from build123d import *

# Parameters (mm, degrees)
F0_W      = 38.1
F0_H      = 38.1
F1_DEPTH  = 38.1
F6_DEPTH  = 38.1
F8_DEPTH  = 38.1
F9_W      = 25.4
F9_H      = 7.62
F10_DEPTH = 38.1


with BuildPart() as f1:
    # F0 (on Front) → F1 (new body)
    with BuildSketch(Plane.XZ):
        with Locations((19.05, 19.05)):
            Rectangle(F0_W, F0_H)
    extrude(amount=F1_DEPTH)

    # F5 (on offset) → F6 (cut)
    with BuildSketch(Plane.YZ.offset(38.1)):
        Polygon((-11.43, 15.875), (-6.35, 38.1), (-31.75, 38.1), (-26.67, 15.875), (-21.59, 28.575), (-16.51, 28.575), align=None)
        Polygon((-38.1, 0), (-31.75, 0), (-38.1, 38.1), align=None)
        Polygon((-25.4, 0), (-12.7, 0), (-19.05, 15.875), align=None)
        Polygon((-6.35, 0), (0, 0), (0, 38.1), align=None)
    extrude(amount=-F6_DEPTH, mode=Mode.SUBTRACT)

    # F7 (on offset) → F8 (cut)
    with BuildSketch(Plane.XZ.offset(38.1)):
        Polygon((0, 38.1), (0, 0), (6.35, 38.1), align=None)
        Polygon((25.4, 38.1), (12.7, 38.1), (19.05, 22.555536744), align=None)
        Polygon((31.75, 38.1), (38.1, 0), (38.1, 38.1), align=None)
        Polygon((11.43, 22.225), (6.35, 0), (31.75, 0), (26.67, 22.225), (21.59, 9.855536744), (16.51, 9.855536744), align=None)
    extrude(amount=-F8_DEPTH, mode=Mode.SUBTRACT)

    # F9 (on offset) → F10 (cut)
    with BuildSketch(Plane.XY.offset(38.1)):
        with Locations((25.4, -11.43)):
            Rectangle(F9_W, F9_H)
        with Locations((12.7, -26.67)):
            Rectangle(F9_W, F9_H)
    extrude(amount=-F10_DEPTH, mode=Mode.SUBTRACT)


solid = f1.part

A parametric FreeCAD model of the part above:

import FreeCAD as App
import Part
import Sketcher

V = App.Vector
Q = App.Units.Quantity

doc = App.newDocument("Part")
params = doc.addObject("Spreadsheet::Sheet", "Params")
for row, (alias, value) in enumerate([
    ("sketch1_width", "1.5 in"),
    ("pad1_length", "1.5 in"),
    ("sketch2_width", "1 in"),
    ("sketch2_width2", "0.2 in"),
    ("sketch2_width3", "0.5 in"),
    ("sketch2_height", "1.5 in"),
    ("pocket1_length", "1.5 in"),
    ("sketch3_width", "1 in"),
    ("sketch3_width2", "0.5 in"),
    ("sketch3_width3", "0.2 in"),
    ("sketch3_height", "1.5 in"),
    ("pocket2_length", "1.5 in"),
    ("sketch4_width", "1 in"),
    ("sketch4_height", "0.3 in"),
    ("pocket3_length", "1.5 in"),
], start=1):
    params.set(f"A{row}", alias)
    params.set(f"B{row}", "=" + value)
    params.setAlias(f"B{row}", alias)

body = doc.addObject("PartDesign::Body", "Body")

# Sketch on XZ plane
sketch1 = body.newObject("Sketcher::SketchObject", "Sketch")
sketch1.AttachmentSupport = (doc.getObject("XZ_Plane"), [""])
sketch1.MapMode = "FlatFace"
sketch1.addGeometry(Part.LineSegment(V(0, 38, 0), V(0, 0, 0)), False)
sketch1.addGeometry(Part.LineSegment(V(0, 0, 0), V(38, 0, 0)), False)
sketch1.addGeometry(Part.LineSegment(V(38, 0, 0), V(38, 38, 0)), False)
sketch1.addGeometry(Part.LineSegment(V(38, 38, 0), V(0, 38, 0)), False)
sketch1.addConstraint(Sketcher.Constraint("Coincident", 0, 2, 1, 1))
sketch1.addConstraint(Sketcher.Constraint("Coincident", 1, 2, 2, 1))
sketch1.addConstraint(Sketcher.Constraint("Coincident", 2, 2, 3, 1))
sketch1.addConstraint(Sketcher.Constraint("Coincident", 3, 2, 0, 1))
sketch1.addConstraint(Sketcher.Constraint("Vertical", 0))
sketch1.addConstraint(Sketcher.Constraint("Horizontal", 1))
sketch1.addConstraint(Sketcher.Constraint("Vertical", 2))
sketch1.addConstraint(Sketcher.Constraint("Horizontal", 3))
sketch1.addConstraint(Sketcher.Constraint("Coincident", 0, 2, -1, 1))
sketch1.addConstraint(Sketcher.Constraint("Equal", 3, 0))
sketch1.addConstraint(Sketcher.Constraint("DistanceX", 1, 1, 1, 2, Q("1.5 in")))
sketch1.setExpression("Constraints[10]", "Params.sketch1_width")
pad1 = body.newObject("PartDesign::Pad", "Pad")
pad1.Profile = sketch1
pad1.setExpression("Length", "Params.pad1_length")

# Sketch on YZ plane
sketch2 = body.newObject("Sketcher::SketchObject", "Sketch001")
sketch2.AttachmentSupport = (doc.getObject("YZ_Plane"), [""])
sketch2.MapMode = "FlatFace"
sketch2.AttachmentOffset = App.Placement(V(0, 0, 1.5 * 25.4), App.Rotation())
sketch2.addGeometry(Part.LineSegment(V(-11, 16, 0), V(-6, 38, 0)), False)
sketch2.addGeometry(Part.LineSegment(V(-6, 38, 0), V(-32, 38, 0)), False)
sketch2.addGeometry(Part.LineSegment(V(-32, 38, 0), V(-27, 16, 0)), False)
sketch2.addGeometry(Part.LineSegment(V(-27, 16, 0), V(-22, 29, 0)), False)
sketch2.addGeometry(Part.LineSegment(V(-22, 29, 0), V(-17, 29, 0)), False)
sketch2.addGeometry(Part.LineSegment(V(-17, 29, 0), V(-11, 16, 0)), False)
sketch2.addGeometry(Part.LineSegment(V(-38, 0, 0), V(-32, 0, 0)), False)
sketch2.addGeometry(Part.LineSegment(V(-32, 0, 0), V(-38, 38, 0)), False)
sketch2.addGeometry(Part.LineSegment(V(-38, 38, 0), V(-38, 0, 0)), False)
sketch2.addGeometry(Part.LineSegment(V(-25, 0, 0), V(-13, 0, 0)), False)
sketch2.addGeometry(Part.LineSegment(V(-13, 0, 0), V(-19, 16, 0)), False)
sketch2.addGeometry(Part.LineSegment(V(-19, 16, 0), V(-25, 0, 0)), False)
sketch2.addGeometry(Part.LineSegment(V(-6, 0, 0), V(0, 0, 0)), False)
sketch2.addGeometry(Part.LineSegment(V(0, 0, 0), V(0, 38, 0)), False)
sketch2.addGeometry(Part.LineSegment(V(0, 38, 0), V(-6, 0, 0)), False)
sketch2.addConstraint(Sketcher.Constraint("Coincident", 0, 2, 1, 1))
sketch2.addConstraint(Sketcher.Constraint("Coincident", 1, 2, 2, 1))
sketch2.addConstraint(Sketcher.Constraint("Coincident", 2, 2, 3, 1))
sketch2.addConstraint(Sketcher.Constraint("Coincident", 3, 2, 4, 1))
sketch2.addConstraint(Sketcher.Constraint("Coincident", 4, 2, 5, 1))
sketch2.addConstraint(Sketcher.Constraint("Coincident", 5, 2, 0, 1))
sketch2.addConstraint(Sketcher.Constraint("Coincident", 6, 2, 7, 1))
sketch2.addConstraint(Sketcher.Constraint("Coincident", 7, 2, 8, 1))
sketch2.addConstraint(Sketcher.Constraint("Coincident", 8, 2, 6, 1))
sketch2.addConstraint(Sketcher.Constraint("Coincident", 9, 2, 10, 1))
sketch2.addConstraint(Sketcher.Constraint("Coincident", 10, 2, 11, 1))
sketch2.addConstraint(Sketcher.Constraint("Coincident", 11, 2, 9, 1))
sketch2.addConstraint(Sketcher.Constraint("Coincident", 12, 2, 13, 1))
sketch2.addConstraint(Sketcher.Constraint("Coincident", 13, 2, 14, 1))
sketch2.addConstraint(Sketcher.Constraint("Coincident", 14, 2, 12, 1))
sketch2.addConstraint(Sketcher.Constraint("Horizontal", 1))
sketch2.addConstraint(Sketcher.Constraint("Horizontal", 4))
sketch2.addConstraint(Sketcher.Constraint("Horizontal", 6))
sketch2.addConstraint(Sketcher.Constraint("Vertical", 8))
sketch2.addConstraint(Sketcher.Constraint("Horizontal", 9))
sketch2.addConstraint(Sketcher.Constraint("Horizontal", 12))
sketch2.addConstraint(Sketcher.Constraint("Vertical", 13))
sketch2.addConstraint(Sketcher.Constraint("Coincident", 12, 2, -1, 1))
sketch2.addConstraint(Sketcher.Constraint("PointOnObject", 6, 2, -1))
sketch2.addConstraint(Sketcher.Constraint("PointOnObject", 9, 2, -1))
sketch2.addConstraint(Sketcher.Constraint("Parallel", 5, 10))
sketch2.addConstraint(Sketcher.Constraint("Parallel", 3, 11))
sketch2.addConstraint(Sketcher.Constraint("Horizontal", 2, 2, 5, 2))
sketch2.addConstraint(Sketcher.Constraint("Horizontal", 1, 2, 7, 2))
sketch2.addConstraint(Sketcher.Constraint("Horizontal", 5, 2, 10, 2))
sketch2.addConstraint(Sketcher.Constraint("Horizontal", 7, 2, 13, 2))
sketch2.addConstraint(Sketcher.Constraint("Vertical", 1, 2, 6, 2))
sketch2.addConstraint(Sketcher.Constraint("Vertical", 0, 2, 14, 2))
sketch2.addConstraint(Sketcher.Constraint("Equal", 6, 12))
sketch2.addConstraint(Sketcher.Constraint("Equal", 0, 2))
sketch2.addConstraint(Sketcher.Constraint("Equal", 3, 5))
sketch2.addConstraint(Sketcher.Constraint("DistanceX", 1, 2, 1, 1, Q("1 in")))
sketch2.addConstraint(Sketcher.Constraint("DistanceX", 4, 1, 4, 2, Q("0.2 in")))
sketch2.addConstraint(Sketcher.Constraint("DistanceX", 9, 1, 9, 2, Q("0.5 in")))
sketch2.addConstraint(Sketcher.Constraint("DistanceY", 8, 2, 8, 1, Q("1.5 in")))
sketch2.addConstraint(Sketcher.Constraint("DistanceX", 11, 2, -1, 1, Q("1 in")))
sketch2.addConstraint(Sketcher.Constraint("DistanceX", 8, 2, 9, 2, Q("1 in")))
sketch2.addConstraint(Sketcher.Constraint("DistanceX", 1, 2, 2, 2, Q("0.2 in")))
sketch2.addConstraint(Sketcher.Constraint("DistanceY", 2, 2, 3, 2, Q("0.5 in")))
sketch2.setExpression("Constraints[36]", "Params.sketch2_width")
sketch2.setExpression("Constraints[37]", "Params.sketch2_width2")
sketch2.setExpression("Constraints[38]", "Params.sketch2_width3")
sketch2.setExpression("Constraints[39]", "Params.sketch2_height")
pocket1 = body.newObject("PartDesign::Pocket", "Pocket")
pocket1.Profile = sketch2
pocket1.setExpression("Length", "Params.pocket1_length")

# Sketch on XZ plane
sketch3 = body.newObject("Sketcher::SketchObject", "Sketch002")
sketch3.AttachmentSupport = (doc.getObject("XZ_Plane"), [""])
sketch3.MapMode = "FlatFace"
sketch3.AttachmentOffset = App.Placement(V(0, 0, 1.5 * 25.4), App.Rotation())
sketch3.addGeometry(Part.LineSegment(V(0, 38, 0), V(0, 0, 0)), False)
sketch3.addGeometry(Part.LineSegment(V(0, 0, 0), V(6, 38, 0)), False)
sketch3.addGeometry(Part.LineSegment(V(6, 38, 0), V(0, 38, 0)), False)
sketch3.addGeometry(Part.LineSegment(V(25, 38, 0), V(13, 38, 0)), False)
sketch3.addGeometry(Part.LineSegment(V(13, 38, 0), V(19, 23, 0)), False)
sketch3.addGeometry(Part.LineSegment(V(19, 23, 0), V(25, 38, 0)), False)
sketch3.addGeometry(Part.LineSegment(V(32, 38, 0), V(38, 0, 0)), False)
sketch3.addGeometry(Part.LineSegment(V(38, 0, 0), V(38, 38, 0)), False)
sketch3.addGeometry(Part.LineSegment(V(38, 38, 0), V(32, 38, 0)), False)
sketch3.addGeometry(Part.LineSegment(V(11, 22, 0), V(6, 0, 0)), False)
sketch3.addGeometry(Part.LineSegment(V(6, 0, 0), V(32, 0, 0)), False)
sketch3.addGeometry(Part.LineSegment(V(32, 0, 0), V(27, 22, 0)), False)
sketch3.addGeometry(Part.LineSegment(V(27, 22, 0), V(22, 10, 0)), False)
sketch3.addGeometry(Part.LineSegment(V(22, 10, 0), V(17, 10, 0)), False)
sketch3.addGeometry(Part.LineSegment(V(17, 10, 0), V(11, 22, 0)), False)
sketch3.addConstraint(Sketcher.Constraint("Coincident", 0, 2, 1, 1))
sketch3.addConstraint(Sketcher.Constraint("Coincident", 1, 2, 2, 1))
sketch3.addConstraint(Sketcher.Constraint("Coincident", 2, 2, 0, 1))
sketch3.addConstraint(Sketcher.Constraint("Coincident", 3, 2, 4, 1))
sketch3.addConstraint(Sketcher.Constraint("Coincident", 4, 2, 5, 1))
sketch3.addConstraint(Sketcher.Constraint("Coincident", 5, 2, 3, 1))
sketch3.addConstraint(Sketcher.Constraint("Coincident", 6, 2, 7, 1))
sketch3.addConstraint(Sketcher.Constraint("Coincident", 7, 2, 8, 1))
sketch3.addConstraint(Sketcher.Constraint("Coincident", 8, 2, 6, 1))
sketch3.addConstraint(Sketcher.Constraint("Coincident", 9, 2, 10, 1))
sketch3.addConstraint(Sketcher.Constraint("Coincident", 10, 2, 11, 1))
sketch3.addConstraint(Sketcher.Constraint("Coincident", 11, 2, 12, 1))
sketch3.addConstraint(Sketcher.Constraint("Coincident", 12, 2, 13, 1))
sketch3.addConstraint(Sketcher.Constraint("Coincident", 13, 2, 14, 1))
sketch3.addConstraint(Sketcher.Constraint("Coincident", 14, 2, 9, 1))
sketch3.addConstraint(Sketcher.Constraint("Vertical", 0))
sketch3.addConstraint(Sketcher.Constraint("Horizontal", 2))
sketch3.addConstraint(Sketcher.Constraint("Horizontal", 3))
sketch3.addConstraint(Sketcher.Constraint("Vertical", 7))
sketch3.addConstraint(Sketcher.Constraint("Horizontal", 8))
sketch3.addConstraint(Sketcher.Constraint("Horizontal", 10))
sketch3.addConstraint(Sketcher.Constraint("Horizontal", 13))
sketch3.addConstraint(Sketcher.Constraint("Coincident", 0, 2, -1, 1))
sketch3.addConstraint(Sketcher.Constraint("PointOnObject", 6, 2, -1))
sketch3.addConstraint(Sketcher.Constraint("PointOnObject", 9, 2, -1))
sketch3.addConstraint(Sketcher.Constraint("Horizontal", 2, 2, 3, 2))
sketch3.addConstraint(Sketcher.Constraint("Horizontal", 5, 2, 7, 2))
sketch3.addConstraint(Sketcher.Constraint("Horizontal", 11, 2, 14, 2))
sketch3.addConstraint(Sketcher.Constraint("Vertical", 1, 2, 9, 2))
sketch3.addConstraint(Sketcher.Constraint("Vertical", 8, 2, 10, 2))
sketch3.addConstraint(Sketcher.Constraint("Equal", 2, 8))
sketch3.addConstraint(Sketcher.Constraint("Equal", 4, 5))
sketch3.addConstraint(Sketcher.Constraint("Equal", 9, 11))
sketch3.addConstraint(Sketcher.Constraint("Equal", 12, 14))
sketch3.addConstraint(Sketcher.Constraint("DistanceX", 10, 1, 10, 2, Q("1 in")))
sketch3.addConstraint(Sketcher.Constraint("DistanceX", 3, 2, 3, 1, Q("0.5 in")))
sketch3.addConstraint(Sketcher.Constraint("DistanceX", 13, 2, 13, 1, Q("0.2 in")))
sketch3.addConstraint(Sketcher.Constraint("DistanceY", 0, 2, 0, 1, Q("1.5 in")))
sketch3.addConstraint(Sketcher.Constraint("DistanceX", -1, 1, 5, 2, Q("1 in")))
sketch3.addConstraint(Sketcher.Constraint("DistanceX", 3, 2, 6, 2, Q("1 in")))
sketch3.addConstraint(Sketcher.Constraint("DistanceX", 4, 2, 11, 2, Q("0.3 in")))
sketch3.addConstraint(Sketcher.Constraint("DistanceY", 12, 2, 4, 2, Q("0.5 in")))
sketch3.addConstraint(Sketcher.Constraint("DistanceY", -1, 1, 11, 2, Q("0.875 in")))
sketch3.addConstraint(Sketcher.Constraint("Distance", 4, Q("16.791451 mm")))
sketch3.setExpression("Constraints[34]", "Params.sketch3_width")
sketch3.setExpression("Constraints[35]", "Params.sketch3_width2")
sketch3.setExpression("Constraints[36]", "Params.sketch3_width3")
sketch3.setExpression("Constraints[37]", "Params.sketch3_height")
pocket2 = body.newObject("PartDesign::Pocket", "Pocket001")
pocket2.Profile = sketch3
pocket2.setExpression("Length", "Params.pocket2_length")

# Sketch on XY plane
sketch4 = body.newObject("Sketcher::SketchObject", "Sketch003")
sketch4.AttachmentSupport = (doc.getObject("XY_Plane"), [""])
sketch4.MapMode = "FlatFace"
sketch4.AttachmentOffset = App.Placement(V(0, 0, 1.5 * 25.4), App.Rotation())
sketch4.addGeometry(Part.LineSegment(V(13, -8, 0), V(13, -15, 0)), False)
sketch4.addGeometry(Part.LineSegment(V(13, -15, 0), V(38, -15, 0)), False)
sketch4.addGeometry(Part.LineSegment(V(38, -15, 0), V(38, -8, 0)), False)
sketch4.addGeometry(Part.LineSegment(V(38, -8, 0), V(13, -8, 0)), False)
sketch4.addGeometry(Part.LineSegment(V(0, -23, 0), V(0, -30, 0)), False)
sketch4.addGeometry(Part.LineSegment(V(0, -30, 0), V(25, -30, 0)), False)
sketch4.addGeometry(Part.LineSegment(V(25, -30, 0), V(25, -23, 0)), False)
sketch4.addGeometry(Part.LineSegment(V(25, -23, 0), V(0, -23, 0)), False)
sketch4.addConstraint(Sketcher.Constraint("Coincident", 0, 2, 1, 1))
sketch4.addConstraint(Sketcher.Constraint("Coincident", 1, 2, 2, 1))
sketch4.addConstraint(Sketcher.Constraint("Coincident", 2, 2, 3, 1))
sketch4.addConstraint(Sketcher.Constraint("Coincident", 3, 2, 0, 1))
sketch4.addConstraint(Sketcher.Constraint("Coincident", 4, 2, 5, 1))
sketch4.addConstraint(Sketcher.Constraint("Coincident", 5, 2, 6, 1))
sketch4.addConstraint(Sketcher.Constraint("Coincident", 6, 2, 7, 1))
sketch4.addConstraint(Sketcher.Constraint("Coincident", 7, 2, 4, 1))
sketch4.addConstraint(Sketcher.Constraint("Vertical", 0))
sketch4.addConstraint(Sketcher.Constraint("Horizontal", 1))
sketch4.addConstraint(Sketcher.Constraint("Vertical", 2))
sketch4.addConstraint(Sketcher.Constraint("Horizontal", 3))
sketch4.addConstraint(Sketcher.Constraint("Vertical", 4))
sketch4.addConstraint(Sketcher.Constraint("Horizontal", 5))
sketch4.addConstraint(Sketcher.Constraint("Vertical", 6))
sketch4.addConstraint(Sketcher.Constraint("Horizontal", 7))
sketch4.addConstraint(Sketcher.Constraint("PointOnObject", 4, 2, -2))
sketch4.addConstraint(Sketcher.Constraint("Equal", 3, 5))
sketch4.addConstraint(Sketcher.Constraint("Equal", 2, 4))
sketch4.addConstraint(Sketcher.Constraint("DistanceX", 1, 1, 1, 2, Q("1 in")))
sketch4.addConstraint(Sketcher.Constraint("DistanceY", 0, 2, 0, 1, Q("0.3 in")))
sketch4.addConstraint(Sketcher.Constraint("DistanceX", -1, 1, 0, 2, Q("0.5 in")))
sketch4.addConstraint(Sketcher.Constraint("DistanceY", 0, 2, -1, 1, Q("0.6 in")))
sketch4.addConstraint(Sketcher.Constraint("DistanceY", 4, 2, -1, 1, Q("1.2 in")))
sketch4.setExpression("Constraints[19]", "Params.sketch4_width")
sketch4.setExpression("Constraints[20]", "Params.sketch4_height")
pocket3 = body.newObject("PartDesign::Pocket", "Pocket002")
pocket3.Profile = sketch4
pocket3.setExpression("Length", "Params.pocket3_length")

doc.recompute()
